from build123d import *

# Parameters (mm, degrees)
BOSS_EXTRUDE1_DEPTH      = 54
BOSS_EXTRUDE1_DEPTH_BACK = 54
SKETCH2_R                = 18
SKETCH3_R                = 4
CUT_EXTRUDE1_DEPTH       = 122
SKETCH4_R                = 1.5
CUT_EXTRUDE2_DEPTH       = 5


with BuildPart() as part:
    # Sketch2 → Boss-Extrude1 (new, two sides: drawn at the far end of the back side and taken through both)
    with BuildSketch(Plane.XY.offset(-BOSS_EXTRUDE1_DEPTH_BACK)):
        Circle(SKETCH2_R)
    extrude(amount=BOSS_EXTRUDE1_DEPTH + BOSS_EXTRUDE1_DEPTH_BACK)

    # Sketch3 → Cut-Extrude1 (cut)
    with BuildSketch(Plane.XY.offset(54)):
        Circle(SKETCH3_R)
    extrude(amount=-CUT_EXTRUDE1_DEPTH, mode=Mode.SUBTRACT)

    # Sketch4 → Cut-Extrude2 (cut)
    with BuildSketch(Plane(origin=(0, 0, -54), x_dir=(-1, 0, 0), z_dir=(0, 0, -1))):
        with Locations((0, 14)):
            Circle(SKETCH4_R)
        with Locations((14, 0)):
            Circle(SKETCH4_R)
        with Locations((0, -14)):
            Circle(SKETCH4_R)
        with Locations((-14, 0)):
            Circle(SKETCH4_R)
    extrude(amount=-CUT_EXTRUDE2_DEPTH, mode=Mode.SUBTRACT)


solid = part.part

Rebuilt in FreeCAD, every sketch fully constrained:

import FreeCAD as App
import Part
import Sketcher

V = App.Vector

doc = App.newDocument("Part")
params = doc.addObject("Spreadsheet::Sheet", "Params")
for row, (alias, value) in enumerate([
    ("sketch1_diameter", "36 mm"),
    ("pad1_length", "54 mm"),
    ("pad1_length2", "54 mm"),
    ("sketch2_diameter", "8 mm"),
    ("pocket1_length", "122 mm"),
    ("sketch3_diameter", "3 mm"),
    ("pocket2_length", "5 mm"),
], start=1):
    params.set(f"A{row}", alias)
    params.set(f"B{row}", "=" + value)
    params.setAlias(f"B{row}", alias)

body = doc.addObject("PartDesign::Body", "Body")

# Sketch on XY plane
sketch1 = body.newObject("Sketcher::SketchObject", "Sketch")
sketch1.AttachmentSupport = (doc.getObject("XY_Plane"), [""])
sketch1.MapMode = "FlatFace"
sketch1.addGeometry(Part.Circle(V(0, 0, 0), V(0, 0, 1), 18), False)
sketch1.addConstraint([
    Sketcher.Constraint("Coincident", 0, 3, -1, 1),
    Sketcher.Constraint("Diameter", 0, 36.0),
])
sketch1.setExpression("Constraints[1]", "Params.sketch1_diameter")
pad1 = body.newObject("PartDesign::Pad", "Pad")
pad1.Profile = sketch1
pad1.Type = "TwoLengths"
pad1.setExpression("Length", "Params.pad1_length")
pad1.setExpression("Length2", "Params.pad1_length2")

# Sketch on XY plane
sketch2 = body.newObject("Sketcher::SketchObject", "Sketch001")
sketch2.AttachmentSupport = (doc.getObject("XY_Plane"), [""])
sketch2.MapMode = "FlatFace"
sketch2.AttachmentOffset = App.Placement(V(0, 0, 54), App.Rotation())
sketch2.addGeometry(Part.Circle(V(0, 0, 0), V(0, 0, 1), 4), False)
sketch2.addConstraint([
    Sketcher.Constraint("Coincident", 0, 3, -1, 1),
    Sketcher.Constraint("Diameter", 0, 8.0),
])
sketch2.setExpression("Constraints[1]", "Params.sketch2_diameter")
pocket1 = body.newObject("PartDesign::Pocket", "Pocket")
pocket1.Profile = sketch2
pocket1.setExpression("Length", "Params.pocket1_length")

# Sketch on XY plane
sketch3 = body.newObject("Sketcher::SketchObject", "Sketch002")
sketch3.AttachmentSupport = (doc.getObject("XY_Plane"), [""])
sketch3.MapMode = "FlatFace"
sketch3.AttachmentOffset = App.Placement(V(0, 0, -54), App.Rotation())
sketch3.addGeometry([
    Part.Circle(V(0, 14, 0), V(0, 0, 1), 1.5),
    Part.Circle(V(-14, 0, 0), V(0, 0, 1), 1.5),
    Part.Circle(V(0, -14, 0), V(0, 0, 1), 1.5),
    Part.Circle(V(14, 0, 0), V(0, 0, 1), 1.5),
], False)
sketch3.addConstraint([
    Sketcher.Constraint("Equal", 0, 1),
    Sketcher.Constraint("Equal", 1, 2),
    Sketcher.Constraint("Equal", 2, 3),
    Sketcher.Constraint("Symmetric", 0, 3, 2, 3, -1, 1),
    Sketcher.Constraint("Symmetric", 1, 3, 3, 3, -1, 1),
    Sketcher.Constraint("PointOnObject", 0, 3, -2),
    Sketcher.Constraint("PointOnObject", 1, 3, -1),
    Sketcher.Constraint("Diameter", 0, 3.0),
    Sketcher.Constraint("DistanceY", -1, 1, 0, 3, 14.0),
    Sketcher.Constraint("DistanceX", 1, 3, -1, 1, 14.0),
])
sketch3.setExpression("Constraints[7]", "Params.sketch3_diameter")
pocket2 = body.newObject("PartDesign::Pocket", "Pocket001")
pocket2.Profile = sketch3
pocket2.setExpression("Length", "Params.pocket2_length")
pocket2.Reversed = True

doc.recompute()
